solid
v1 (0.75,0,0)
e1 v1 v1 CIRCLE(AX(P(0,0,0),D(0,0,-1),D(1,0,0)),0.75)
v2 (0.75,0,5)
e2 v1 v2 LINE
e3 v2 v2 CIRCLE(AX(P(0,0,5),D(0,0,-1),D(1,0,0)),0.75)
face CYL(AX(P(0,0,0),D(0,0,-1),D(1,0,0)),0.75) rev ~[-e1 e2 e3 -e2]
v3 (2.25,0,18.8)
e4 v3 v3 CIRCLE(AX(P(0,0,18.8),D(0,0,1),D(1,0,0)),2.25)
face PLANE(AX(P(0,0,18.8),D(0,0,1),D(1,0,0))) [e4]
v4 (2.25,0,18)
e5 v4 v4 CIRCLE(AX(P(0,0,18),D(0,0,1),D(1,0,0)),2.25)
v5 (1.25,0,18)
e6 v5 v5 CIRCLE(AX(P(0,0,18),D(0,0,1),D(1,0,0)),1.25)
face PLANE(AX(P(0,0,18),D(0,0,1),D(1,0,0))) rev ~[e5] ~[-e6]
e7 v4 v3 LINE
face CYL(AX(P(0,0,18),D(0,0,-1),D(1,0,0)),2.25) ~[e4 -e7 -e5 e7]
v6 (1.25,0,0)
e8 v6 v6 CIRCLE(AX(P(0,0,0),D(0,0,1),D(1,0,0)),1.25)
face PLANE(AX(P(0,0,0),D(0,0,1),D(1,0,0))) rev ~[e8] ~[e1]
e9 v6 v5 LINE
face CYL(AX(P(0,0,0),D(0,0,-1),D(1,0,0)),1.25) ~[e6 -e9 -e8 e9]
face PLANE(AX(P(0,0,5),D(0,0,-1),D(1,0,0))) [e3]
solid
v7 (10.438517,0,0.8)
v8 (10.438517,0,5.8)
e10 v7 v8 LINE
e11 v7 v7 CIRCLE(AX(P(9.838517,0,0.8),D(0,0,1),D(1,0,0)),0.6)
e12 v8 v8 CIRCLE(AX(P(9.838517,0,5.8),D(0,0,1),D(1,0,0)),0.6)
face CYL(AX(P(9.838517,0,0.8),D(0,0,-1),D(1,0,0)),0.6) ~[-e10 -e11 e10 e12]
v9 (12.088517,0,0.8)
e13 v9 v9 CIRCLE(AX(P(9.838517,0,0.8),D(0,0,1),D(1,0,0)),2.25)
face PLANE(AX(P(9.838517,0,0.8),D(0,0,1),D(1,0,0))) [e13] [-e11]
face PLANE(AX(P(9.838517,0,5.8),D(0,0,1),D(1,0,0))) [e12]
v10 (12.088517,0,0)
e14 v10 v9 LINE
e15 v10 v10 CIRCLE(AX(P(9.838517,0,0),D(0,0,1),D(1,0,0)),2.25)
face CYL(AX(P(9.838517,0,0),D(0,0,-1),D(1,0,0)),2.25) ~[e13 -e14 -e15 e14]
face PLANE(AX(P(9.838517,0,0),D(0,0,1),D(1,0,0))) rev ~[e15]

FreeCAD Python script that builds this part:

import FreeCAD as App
import Part
import Sketcher
from FreeCAD import Vector
Q = App.Units.Quantity

doc = App.newDocument("Part")
params = doc.addObject("Spreadsheet::Sheet", "Params")
for row, (alias, value) in enumerate([
    ("sketch1_diameter", "2.5 mm"),
    ("pad1_length", "18 mm"),
    ("sketch2_diameter", "4.5 mm"),
    ("pad2_length", "0.8 mm"),
    ("sketch3_diameter", "1.5 mm"),
    ("pocket1_length", "5 mm"),
    ("sketch4_diameter", "4.5 mm"),
    ("pad3_length", "0.8 mm"),
    ("sketch5_diameter", "1.2 mm"),
    ("pad4_length", "5 mm"),
], start=1):
    params.set(f"A{row}", alias)
    params.set(f"B{row}", "=" + value)
    params.setAlias(f"B{row}", alias)

body = doc.addObject("PartDesign::Body", "Body")

# Sketch on XY plane
sketch1 = body.newObject("Sketcher::SketchObject", "Sketch")
sketch1.AttachmentSupport = (doc.getObject("XY_Plane"), [""])
sketch1.MapMode = "FlatFace"
sketch1.addGeometry(Part.Circle(Vector(0, 0, 0), Vector(0, 0, 1), 1.2), False)
sketch1.addConstraint([
    Sketcher.Constraint("Coincident", 0, 3, -1, 1),
    Sketcher.Constraint("Diameter", 0, Q("2.5 mm")),
])
sketch1.setExpression("Constraints[1]", "Params.sketch1_diameter")
pad1 = body.newObject("PartDesign::Pad", "Pad")
pad1.Profile = sketch1
pad1.setExpression("Length", "Params.pad1_length")

# Sketch on XY plane
sketch2 = body.newObject("Sketcher::SketchObject", "Sketch001")
sketch2.AttachmentSupport = (doc.getObject("XY_Plane"), [""])
sketch2.MapMode = "FlatFace"
sketch2.AttachmentOffset = App.Placement(Vector(0, 0, 18), App.Rotation())
sketch2.addGeometry(Part.Circle(Vector(0, 0, 0), Vector(0, 0, 1), 2.2), False)
sketch2.addConstraint([
    Sketcher.Constraint("Coincident", 0, 3, -1, 1),
    Sketcher.Constraint("Diameter", 0, Q("4.5 mm")),
])
sketch2.setExpression("Constraints[1]", "Params.sketch2_diameter")
pad2 = body.newObject("PartDesign::Pad", "Pad001")
pad2.Profile = sketch2
pad2.setExpression("Length", "Params.pad2_length")

# Sketch on XY plane
sketch3 = body.newObject("Sketcher::SketchObject", "Sketch002")
sketch3.AttachmentSupport = (doc.getObject("XY_Plane"), [""])
sketch3.MapMode = "FlatFace"
sketch3.addGeometry(Part.Circle(Vector(0, 0, 0), Vector(0, 0, 1), 0.8), False)
sketch3.addConstraint([
    Sketcher.Constraint("Coincident", 0, 3, -1, 1),
    Sketcher.Constraint("Diameter", 0, Q("1.5 mm")),
])
sketch3.setExpression("Constraints[1]", "Params.sketch3_diameter")
pocket1 = body.newObject("PartDesign::Pocket", "Pocket")
pocket1.Profile = sketch3
pocket1.setExpression("Length", "Params.pocket1_length")
pocket1.Reversed = True
body2 = doc.addObject("PartDesign::Body", "Body001")

# Sketch on XY plane
sketch4 = body2.newObject("Sketcher::SketchObject", "Sketch003")
sketch4.AttachmentSupport = (doc.getObject("XY_Plane001"), [""])
sketch4.MapMode = "FlatFace"
sketch4.addGeometry(Part.Circle(Vector(9.8, 0, 0), Vector(0, 0, 1), 2.2), False)
sketch4.addConstraint([
    Sketcher.Constraint("PointOnObject", 0, 3, -1),
    Sketcher.Constraint("Diameter", 0, Q("4.5 mm")),
    Sketcher.Constraint("DistanceX", -1, 1, 0, 3, Q("9.838517 mm")),
])
sketch4.setExpression("Constraints[1]", "Params.sketch4_diameter")
pad3 = body2.newObject("PartDesign::Pad", "Pad002")
pad3.Profile = sketch4
pad3.setExpression("Length", "Params.pad3_length")

# Sketch on XY plane
sketch5 = body2.newObject("Sketcher::SketchObject", "Sketch004")
sketch5.AttachmentSupport = (doc.getObject("XY_Plane001"), [""])
sketch5.MapMode = "FlatFace"
sketch5.AttachmentOffset = App.Placement(Vector(0, 0, 0.8), App.Rotation())
sketch5.addGeometry(Part.Circle(Vector(9.8, 0, 0), Vector(0, 0, 1), 0.6), False)
sketch5.addConstraint([
    Sketcher.Constraint("PointOnObject", 0, 3, -1),
    Sketcher.Constraint("Diameter", 0, Q("1.2 mm")),
    Sketcher.Constraint("DistanceX", -1, 1, 0, 3, Q("9.838517 mm")),
])
sketch5.setExpression("Constraints[1]", "Params.sketch5_diameter")
pad4 = body2.newObject("PartDesign::Pad", "Pad003")
pad4.Profile = sketch5
pad4.setExpression("Length", "Params.pad4_length")

doc.recompute()
